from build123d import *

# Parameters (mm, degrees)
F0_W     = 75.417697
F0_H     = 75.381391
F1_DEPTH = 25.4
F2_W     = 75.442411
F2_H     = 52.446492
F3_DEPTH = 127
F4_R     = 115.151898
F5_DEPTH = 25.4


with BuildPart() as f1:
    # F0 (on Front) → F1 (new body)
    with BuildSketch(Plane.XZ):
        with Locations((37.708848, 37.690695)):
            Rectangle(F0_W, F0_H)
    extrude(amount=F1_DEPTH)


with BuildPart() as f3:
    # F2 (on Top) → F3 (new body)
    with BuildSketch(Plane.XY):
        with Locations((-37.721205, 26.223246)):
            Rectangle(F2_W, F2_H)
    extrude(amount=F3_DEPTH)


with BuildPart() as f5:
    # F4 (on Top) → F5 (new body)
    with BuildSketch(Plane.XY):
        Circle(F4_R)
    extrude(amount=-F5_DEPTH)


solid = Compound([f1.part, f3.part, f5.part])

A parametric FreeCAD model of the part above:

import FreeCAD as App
import Part
import Sketcher
from FreeCAD import Vector
Q = App.Units.Quantity

doc = App.newDocument("Part")
body = doc.addObject("PartDesign::Body", "Body")

sketch1 = body.newObject("Sketcher::SketchObject", "Sketch")
sketch1.AttachmentSupport = (doc.getObject("XZ_Plane"), [""])
sketch1.MapMode = "FlatFace"
sketch1.addGeometry([
    Part.LineSegment(Vector(0, 75.38139, 0), Vector(0, 0, 0)),
    Part.LineSegment(Vector(0, 0, 0), Vector(75.417697, 0, 0)),
    Part.LineSegment(Vector(75.417697, 0, 0), Vector(75.417697, 75.38139, 0)),
    Part.LineSegment(Vector(75.417697, 75.38139, 0), Vector(0, 75.38139, 0)),
], False)
sketch1.addConstraint([
    Sketcher.Constraint("Coincident", 0, 2, 1, 1),
    Sketcher.Constraint("Coincident", 1, 2, 2, 1),
    Sketcher.Constraint("Coincident", 2, 2, 3, 1),
    Sketcher.Constraint("Coincident", 3, 2, 0, 1),
    Sketcher.Constraint("Vertical", 0),
    Sketcher.Constraint("Horizontal", 1),
    Sketcher.Constraint("Vertical", 2),
    Sketcher.Constraint("Horizontal", 3),
    Sketcher.Constraint("Coincident", 0, 2, -1, 1),
    Sketcher.Constraint("DistanceY", 0, 2, 0, 1, Q("75.381391 mm")),
    Sketcher.Constraint("DistanceX", 1, 1, 1, 2, Q("75.417697 mm")),
])
pad1 = body.newObject("PartDesign::Pad", "Pad")
pad1.Profile = sketch1
pad1.Length = Q("1 in")
body2 = doc.addObject("PartDesign::Body", "Body001")

sketch2 = body2.newObject("Sketcher::SketchObject", "Sketch001")
sketch2.AttachmentSupport = (doc.getObject("XY_Plane001"), [""])
sketch2.MapMode = "FlatFace"
sketch2.addGeometry([
    Part.LineSegment(Vector(-75.44241, 52.446492, 0), Vector(-75.44241, 0, 0)),
    Part.LineSegment(Vector(-75.44241, 0, 0), Vector(0, 0, 0)),
    Part.LineSegment(Vector(0, 0, 0), Vector(0, 52.446492, 0)),
    Part.LineSegment(Vector(0, 52.446492, 0), Vector(-75.44241, 52.446492, 0)),
], False)
sketch2.addConstraint([
    Sketcher.Constraint("Coincident", 0, 2, 1, 1),
    Sketcher.Constraint("Coincident", 1, 2, 2, 1),
    Sketcher.Constraint("Coincident", 2, 2, 3, 1),
    Sketcher.Constraint("Coincident", 3, 2, 0, 1),
    Sketcher.Constraint("Vertical", 0),
    Sketcher.Constraint("Horizontal", 1),
    Sketcher.Constraint("Vertical", 2),
    Sketcher.Constraint("Horizontal", 3),
    Sketcher.Constraint("Coincident", 1, 2, -1, 1),
    Sketcher.Constraint("DistanceX", 1, 1, 1, 2, Q("75.442411 mm")),
    Sketcher.Constraint("DistanceY", 0, 2, 0, 1, Q("52.446492 mm")),
])
pad2 = body2.newObject("PartDesign::Pad", "Pad001")
pad2.Profile = sketch2
pad2.Length = Q("5 in")
body3 = doc.addObject("PartDesign::Body", "Body002")

sketch3 = body3.newObject("Sketcher::SketchObject", "Sketch002")
sketch3.AttachmentSupport = (doc.getObject("XY_Plane002"), [""])
sketch3.MapMode = "FlatFace"
sketch3.addGeometry(Part.Circle(Vector(0, 0, 0), Vector(0, 0, 1), 115.151898), False)
sketch3.addConstraint([
    Sketcher.Constraint("Coincident", 0, 3, -1, 1),
    Sketcher.Constraint("Diameter", 0, Q("230.303796 mm")),
])
pad3 = body3.newObject("PartDesign::Pad", "Pad002")
pad3.Profile = sketch3
pad3.Length = Q("1 in")
pad3.Reversed = True

doc.recompute()
